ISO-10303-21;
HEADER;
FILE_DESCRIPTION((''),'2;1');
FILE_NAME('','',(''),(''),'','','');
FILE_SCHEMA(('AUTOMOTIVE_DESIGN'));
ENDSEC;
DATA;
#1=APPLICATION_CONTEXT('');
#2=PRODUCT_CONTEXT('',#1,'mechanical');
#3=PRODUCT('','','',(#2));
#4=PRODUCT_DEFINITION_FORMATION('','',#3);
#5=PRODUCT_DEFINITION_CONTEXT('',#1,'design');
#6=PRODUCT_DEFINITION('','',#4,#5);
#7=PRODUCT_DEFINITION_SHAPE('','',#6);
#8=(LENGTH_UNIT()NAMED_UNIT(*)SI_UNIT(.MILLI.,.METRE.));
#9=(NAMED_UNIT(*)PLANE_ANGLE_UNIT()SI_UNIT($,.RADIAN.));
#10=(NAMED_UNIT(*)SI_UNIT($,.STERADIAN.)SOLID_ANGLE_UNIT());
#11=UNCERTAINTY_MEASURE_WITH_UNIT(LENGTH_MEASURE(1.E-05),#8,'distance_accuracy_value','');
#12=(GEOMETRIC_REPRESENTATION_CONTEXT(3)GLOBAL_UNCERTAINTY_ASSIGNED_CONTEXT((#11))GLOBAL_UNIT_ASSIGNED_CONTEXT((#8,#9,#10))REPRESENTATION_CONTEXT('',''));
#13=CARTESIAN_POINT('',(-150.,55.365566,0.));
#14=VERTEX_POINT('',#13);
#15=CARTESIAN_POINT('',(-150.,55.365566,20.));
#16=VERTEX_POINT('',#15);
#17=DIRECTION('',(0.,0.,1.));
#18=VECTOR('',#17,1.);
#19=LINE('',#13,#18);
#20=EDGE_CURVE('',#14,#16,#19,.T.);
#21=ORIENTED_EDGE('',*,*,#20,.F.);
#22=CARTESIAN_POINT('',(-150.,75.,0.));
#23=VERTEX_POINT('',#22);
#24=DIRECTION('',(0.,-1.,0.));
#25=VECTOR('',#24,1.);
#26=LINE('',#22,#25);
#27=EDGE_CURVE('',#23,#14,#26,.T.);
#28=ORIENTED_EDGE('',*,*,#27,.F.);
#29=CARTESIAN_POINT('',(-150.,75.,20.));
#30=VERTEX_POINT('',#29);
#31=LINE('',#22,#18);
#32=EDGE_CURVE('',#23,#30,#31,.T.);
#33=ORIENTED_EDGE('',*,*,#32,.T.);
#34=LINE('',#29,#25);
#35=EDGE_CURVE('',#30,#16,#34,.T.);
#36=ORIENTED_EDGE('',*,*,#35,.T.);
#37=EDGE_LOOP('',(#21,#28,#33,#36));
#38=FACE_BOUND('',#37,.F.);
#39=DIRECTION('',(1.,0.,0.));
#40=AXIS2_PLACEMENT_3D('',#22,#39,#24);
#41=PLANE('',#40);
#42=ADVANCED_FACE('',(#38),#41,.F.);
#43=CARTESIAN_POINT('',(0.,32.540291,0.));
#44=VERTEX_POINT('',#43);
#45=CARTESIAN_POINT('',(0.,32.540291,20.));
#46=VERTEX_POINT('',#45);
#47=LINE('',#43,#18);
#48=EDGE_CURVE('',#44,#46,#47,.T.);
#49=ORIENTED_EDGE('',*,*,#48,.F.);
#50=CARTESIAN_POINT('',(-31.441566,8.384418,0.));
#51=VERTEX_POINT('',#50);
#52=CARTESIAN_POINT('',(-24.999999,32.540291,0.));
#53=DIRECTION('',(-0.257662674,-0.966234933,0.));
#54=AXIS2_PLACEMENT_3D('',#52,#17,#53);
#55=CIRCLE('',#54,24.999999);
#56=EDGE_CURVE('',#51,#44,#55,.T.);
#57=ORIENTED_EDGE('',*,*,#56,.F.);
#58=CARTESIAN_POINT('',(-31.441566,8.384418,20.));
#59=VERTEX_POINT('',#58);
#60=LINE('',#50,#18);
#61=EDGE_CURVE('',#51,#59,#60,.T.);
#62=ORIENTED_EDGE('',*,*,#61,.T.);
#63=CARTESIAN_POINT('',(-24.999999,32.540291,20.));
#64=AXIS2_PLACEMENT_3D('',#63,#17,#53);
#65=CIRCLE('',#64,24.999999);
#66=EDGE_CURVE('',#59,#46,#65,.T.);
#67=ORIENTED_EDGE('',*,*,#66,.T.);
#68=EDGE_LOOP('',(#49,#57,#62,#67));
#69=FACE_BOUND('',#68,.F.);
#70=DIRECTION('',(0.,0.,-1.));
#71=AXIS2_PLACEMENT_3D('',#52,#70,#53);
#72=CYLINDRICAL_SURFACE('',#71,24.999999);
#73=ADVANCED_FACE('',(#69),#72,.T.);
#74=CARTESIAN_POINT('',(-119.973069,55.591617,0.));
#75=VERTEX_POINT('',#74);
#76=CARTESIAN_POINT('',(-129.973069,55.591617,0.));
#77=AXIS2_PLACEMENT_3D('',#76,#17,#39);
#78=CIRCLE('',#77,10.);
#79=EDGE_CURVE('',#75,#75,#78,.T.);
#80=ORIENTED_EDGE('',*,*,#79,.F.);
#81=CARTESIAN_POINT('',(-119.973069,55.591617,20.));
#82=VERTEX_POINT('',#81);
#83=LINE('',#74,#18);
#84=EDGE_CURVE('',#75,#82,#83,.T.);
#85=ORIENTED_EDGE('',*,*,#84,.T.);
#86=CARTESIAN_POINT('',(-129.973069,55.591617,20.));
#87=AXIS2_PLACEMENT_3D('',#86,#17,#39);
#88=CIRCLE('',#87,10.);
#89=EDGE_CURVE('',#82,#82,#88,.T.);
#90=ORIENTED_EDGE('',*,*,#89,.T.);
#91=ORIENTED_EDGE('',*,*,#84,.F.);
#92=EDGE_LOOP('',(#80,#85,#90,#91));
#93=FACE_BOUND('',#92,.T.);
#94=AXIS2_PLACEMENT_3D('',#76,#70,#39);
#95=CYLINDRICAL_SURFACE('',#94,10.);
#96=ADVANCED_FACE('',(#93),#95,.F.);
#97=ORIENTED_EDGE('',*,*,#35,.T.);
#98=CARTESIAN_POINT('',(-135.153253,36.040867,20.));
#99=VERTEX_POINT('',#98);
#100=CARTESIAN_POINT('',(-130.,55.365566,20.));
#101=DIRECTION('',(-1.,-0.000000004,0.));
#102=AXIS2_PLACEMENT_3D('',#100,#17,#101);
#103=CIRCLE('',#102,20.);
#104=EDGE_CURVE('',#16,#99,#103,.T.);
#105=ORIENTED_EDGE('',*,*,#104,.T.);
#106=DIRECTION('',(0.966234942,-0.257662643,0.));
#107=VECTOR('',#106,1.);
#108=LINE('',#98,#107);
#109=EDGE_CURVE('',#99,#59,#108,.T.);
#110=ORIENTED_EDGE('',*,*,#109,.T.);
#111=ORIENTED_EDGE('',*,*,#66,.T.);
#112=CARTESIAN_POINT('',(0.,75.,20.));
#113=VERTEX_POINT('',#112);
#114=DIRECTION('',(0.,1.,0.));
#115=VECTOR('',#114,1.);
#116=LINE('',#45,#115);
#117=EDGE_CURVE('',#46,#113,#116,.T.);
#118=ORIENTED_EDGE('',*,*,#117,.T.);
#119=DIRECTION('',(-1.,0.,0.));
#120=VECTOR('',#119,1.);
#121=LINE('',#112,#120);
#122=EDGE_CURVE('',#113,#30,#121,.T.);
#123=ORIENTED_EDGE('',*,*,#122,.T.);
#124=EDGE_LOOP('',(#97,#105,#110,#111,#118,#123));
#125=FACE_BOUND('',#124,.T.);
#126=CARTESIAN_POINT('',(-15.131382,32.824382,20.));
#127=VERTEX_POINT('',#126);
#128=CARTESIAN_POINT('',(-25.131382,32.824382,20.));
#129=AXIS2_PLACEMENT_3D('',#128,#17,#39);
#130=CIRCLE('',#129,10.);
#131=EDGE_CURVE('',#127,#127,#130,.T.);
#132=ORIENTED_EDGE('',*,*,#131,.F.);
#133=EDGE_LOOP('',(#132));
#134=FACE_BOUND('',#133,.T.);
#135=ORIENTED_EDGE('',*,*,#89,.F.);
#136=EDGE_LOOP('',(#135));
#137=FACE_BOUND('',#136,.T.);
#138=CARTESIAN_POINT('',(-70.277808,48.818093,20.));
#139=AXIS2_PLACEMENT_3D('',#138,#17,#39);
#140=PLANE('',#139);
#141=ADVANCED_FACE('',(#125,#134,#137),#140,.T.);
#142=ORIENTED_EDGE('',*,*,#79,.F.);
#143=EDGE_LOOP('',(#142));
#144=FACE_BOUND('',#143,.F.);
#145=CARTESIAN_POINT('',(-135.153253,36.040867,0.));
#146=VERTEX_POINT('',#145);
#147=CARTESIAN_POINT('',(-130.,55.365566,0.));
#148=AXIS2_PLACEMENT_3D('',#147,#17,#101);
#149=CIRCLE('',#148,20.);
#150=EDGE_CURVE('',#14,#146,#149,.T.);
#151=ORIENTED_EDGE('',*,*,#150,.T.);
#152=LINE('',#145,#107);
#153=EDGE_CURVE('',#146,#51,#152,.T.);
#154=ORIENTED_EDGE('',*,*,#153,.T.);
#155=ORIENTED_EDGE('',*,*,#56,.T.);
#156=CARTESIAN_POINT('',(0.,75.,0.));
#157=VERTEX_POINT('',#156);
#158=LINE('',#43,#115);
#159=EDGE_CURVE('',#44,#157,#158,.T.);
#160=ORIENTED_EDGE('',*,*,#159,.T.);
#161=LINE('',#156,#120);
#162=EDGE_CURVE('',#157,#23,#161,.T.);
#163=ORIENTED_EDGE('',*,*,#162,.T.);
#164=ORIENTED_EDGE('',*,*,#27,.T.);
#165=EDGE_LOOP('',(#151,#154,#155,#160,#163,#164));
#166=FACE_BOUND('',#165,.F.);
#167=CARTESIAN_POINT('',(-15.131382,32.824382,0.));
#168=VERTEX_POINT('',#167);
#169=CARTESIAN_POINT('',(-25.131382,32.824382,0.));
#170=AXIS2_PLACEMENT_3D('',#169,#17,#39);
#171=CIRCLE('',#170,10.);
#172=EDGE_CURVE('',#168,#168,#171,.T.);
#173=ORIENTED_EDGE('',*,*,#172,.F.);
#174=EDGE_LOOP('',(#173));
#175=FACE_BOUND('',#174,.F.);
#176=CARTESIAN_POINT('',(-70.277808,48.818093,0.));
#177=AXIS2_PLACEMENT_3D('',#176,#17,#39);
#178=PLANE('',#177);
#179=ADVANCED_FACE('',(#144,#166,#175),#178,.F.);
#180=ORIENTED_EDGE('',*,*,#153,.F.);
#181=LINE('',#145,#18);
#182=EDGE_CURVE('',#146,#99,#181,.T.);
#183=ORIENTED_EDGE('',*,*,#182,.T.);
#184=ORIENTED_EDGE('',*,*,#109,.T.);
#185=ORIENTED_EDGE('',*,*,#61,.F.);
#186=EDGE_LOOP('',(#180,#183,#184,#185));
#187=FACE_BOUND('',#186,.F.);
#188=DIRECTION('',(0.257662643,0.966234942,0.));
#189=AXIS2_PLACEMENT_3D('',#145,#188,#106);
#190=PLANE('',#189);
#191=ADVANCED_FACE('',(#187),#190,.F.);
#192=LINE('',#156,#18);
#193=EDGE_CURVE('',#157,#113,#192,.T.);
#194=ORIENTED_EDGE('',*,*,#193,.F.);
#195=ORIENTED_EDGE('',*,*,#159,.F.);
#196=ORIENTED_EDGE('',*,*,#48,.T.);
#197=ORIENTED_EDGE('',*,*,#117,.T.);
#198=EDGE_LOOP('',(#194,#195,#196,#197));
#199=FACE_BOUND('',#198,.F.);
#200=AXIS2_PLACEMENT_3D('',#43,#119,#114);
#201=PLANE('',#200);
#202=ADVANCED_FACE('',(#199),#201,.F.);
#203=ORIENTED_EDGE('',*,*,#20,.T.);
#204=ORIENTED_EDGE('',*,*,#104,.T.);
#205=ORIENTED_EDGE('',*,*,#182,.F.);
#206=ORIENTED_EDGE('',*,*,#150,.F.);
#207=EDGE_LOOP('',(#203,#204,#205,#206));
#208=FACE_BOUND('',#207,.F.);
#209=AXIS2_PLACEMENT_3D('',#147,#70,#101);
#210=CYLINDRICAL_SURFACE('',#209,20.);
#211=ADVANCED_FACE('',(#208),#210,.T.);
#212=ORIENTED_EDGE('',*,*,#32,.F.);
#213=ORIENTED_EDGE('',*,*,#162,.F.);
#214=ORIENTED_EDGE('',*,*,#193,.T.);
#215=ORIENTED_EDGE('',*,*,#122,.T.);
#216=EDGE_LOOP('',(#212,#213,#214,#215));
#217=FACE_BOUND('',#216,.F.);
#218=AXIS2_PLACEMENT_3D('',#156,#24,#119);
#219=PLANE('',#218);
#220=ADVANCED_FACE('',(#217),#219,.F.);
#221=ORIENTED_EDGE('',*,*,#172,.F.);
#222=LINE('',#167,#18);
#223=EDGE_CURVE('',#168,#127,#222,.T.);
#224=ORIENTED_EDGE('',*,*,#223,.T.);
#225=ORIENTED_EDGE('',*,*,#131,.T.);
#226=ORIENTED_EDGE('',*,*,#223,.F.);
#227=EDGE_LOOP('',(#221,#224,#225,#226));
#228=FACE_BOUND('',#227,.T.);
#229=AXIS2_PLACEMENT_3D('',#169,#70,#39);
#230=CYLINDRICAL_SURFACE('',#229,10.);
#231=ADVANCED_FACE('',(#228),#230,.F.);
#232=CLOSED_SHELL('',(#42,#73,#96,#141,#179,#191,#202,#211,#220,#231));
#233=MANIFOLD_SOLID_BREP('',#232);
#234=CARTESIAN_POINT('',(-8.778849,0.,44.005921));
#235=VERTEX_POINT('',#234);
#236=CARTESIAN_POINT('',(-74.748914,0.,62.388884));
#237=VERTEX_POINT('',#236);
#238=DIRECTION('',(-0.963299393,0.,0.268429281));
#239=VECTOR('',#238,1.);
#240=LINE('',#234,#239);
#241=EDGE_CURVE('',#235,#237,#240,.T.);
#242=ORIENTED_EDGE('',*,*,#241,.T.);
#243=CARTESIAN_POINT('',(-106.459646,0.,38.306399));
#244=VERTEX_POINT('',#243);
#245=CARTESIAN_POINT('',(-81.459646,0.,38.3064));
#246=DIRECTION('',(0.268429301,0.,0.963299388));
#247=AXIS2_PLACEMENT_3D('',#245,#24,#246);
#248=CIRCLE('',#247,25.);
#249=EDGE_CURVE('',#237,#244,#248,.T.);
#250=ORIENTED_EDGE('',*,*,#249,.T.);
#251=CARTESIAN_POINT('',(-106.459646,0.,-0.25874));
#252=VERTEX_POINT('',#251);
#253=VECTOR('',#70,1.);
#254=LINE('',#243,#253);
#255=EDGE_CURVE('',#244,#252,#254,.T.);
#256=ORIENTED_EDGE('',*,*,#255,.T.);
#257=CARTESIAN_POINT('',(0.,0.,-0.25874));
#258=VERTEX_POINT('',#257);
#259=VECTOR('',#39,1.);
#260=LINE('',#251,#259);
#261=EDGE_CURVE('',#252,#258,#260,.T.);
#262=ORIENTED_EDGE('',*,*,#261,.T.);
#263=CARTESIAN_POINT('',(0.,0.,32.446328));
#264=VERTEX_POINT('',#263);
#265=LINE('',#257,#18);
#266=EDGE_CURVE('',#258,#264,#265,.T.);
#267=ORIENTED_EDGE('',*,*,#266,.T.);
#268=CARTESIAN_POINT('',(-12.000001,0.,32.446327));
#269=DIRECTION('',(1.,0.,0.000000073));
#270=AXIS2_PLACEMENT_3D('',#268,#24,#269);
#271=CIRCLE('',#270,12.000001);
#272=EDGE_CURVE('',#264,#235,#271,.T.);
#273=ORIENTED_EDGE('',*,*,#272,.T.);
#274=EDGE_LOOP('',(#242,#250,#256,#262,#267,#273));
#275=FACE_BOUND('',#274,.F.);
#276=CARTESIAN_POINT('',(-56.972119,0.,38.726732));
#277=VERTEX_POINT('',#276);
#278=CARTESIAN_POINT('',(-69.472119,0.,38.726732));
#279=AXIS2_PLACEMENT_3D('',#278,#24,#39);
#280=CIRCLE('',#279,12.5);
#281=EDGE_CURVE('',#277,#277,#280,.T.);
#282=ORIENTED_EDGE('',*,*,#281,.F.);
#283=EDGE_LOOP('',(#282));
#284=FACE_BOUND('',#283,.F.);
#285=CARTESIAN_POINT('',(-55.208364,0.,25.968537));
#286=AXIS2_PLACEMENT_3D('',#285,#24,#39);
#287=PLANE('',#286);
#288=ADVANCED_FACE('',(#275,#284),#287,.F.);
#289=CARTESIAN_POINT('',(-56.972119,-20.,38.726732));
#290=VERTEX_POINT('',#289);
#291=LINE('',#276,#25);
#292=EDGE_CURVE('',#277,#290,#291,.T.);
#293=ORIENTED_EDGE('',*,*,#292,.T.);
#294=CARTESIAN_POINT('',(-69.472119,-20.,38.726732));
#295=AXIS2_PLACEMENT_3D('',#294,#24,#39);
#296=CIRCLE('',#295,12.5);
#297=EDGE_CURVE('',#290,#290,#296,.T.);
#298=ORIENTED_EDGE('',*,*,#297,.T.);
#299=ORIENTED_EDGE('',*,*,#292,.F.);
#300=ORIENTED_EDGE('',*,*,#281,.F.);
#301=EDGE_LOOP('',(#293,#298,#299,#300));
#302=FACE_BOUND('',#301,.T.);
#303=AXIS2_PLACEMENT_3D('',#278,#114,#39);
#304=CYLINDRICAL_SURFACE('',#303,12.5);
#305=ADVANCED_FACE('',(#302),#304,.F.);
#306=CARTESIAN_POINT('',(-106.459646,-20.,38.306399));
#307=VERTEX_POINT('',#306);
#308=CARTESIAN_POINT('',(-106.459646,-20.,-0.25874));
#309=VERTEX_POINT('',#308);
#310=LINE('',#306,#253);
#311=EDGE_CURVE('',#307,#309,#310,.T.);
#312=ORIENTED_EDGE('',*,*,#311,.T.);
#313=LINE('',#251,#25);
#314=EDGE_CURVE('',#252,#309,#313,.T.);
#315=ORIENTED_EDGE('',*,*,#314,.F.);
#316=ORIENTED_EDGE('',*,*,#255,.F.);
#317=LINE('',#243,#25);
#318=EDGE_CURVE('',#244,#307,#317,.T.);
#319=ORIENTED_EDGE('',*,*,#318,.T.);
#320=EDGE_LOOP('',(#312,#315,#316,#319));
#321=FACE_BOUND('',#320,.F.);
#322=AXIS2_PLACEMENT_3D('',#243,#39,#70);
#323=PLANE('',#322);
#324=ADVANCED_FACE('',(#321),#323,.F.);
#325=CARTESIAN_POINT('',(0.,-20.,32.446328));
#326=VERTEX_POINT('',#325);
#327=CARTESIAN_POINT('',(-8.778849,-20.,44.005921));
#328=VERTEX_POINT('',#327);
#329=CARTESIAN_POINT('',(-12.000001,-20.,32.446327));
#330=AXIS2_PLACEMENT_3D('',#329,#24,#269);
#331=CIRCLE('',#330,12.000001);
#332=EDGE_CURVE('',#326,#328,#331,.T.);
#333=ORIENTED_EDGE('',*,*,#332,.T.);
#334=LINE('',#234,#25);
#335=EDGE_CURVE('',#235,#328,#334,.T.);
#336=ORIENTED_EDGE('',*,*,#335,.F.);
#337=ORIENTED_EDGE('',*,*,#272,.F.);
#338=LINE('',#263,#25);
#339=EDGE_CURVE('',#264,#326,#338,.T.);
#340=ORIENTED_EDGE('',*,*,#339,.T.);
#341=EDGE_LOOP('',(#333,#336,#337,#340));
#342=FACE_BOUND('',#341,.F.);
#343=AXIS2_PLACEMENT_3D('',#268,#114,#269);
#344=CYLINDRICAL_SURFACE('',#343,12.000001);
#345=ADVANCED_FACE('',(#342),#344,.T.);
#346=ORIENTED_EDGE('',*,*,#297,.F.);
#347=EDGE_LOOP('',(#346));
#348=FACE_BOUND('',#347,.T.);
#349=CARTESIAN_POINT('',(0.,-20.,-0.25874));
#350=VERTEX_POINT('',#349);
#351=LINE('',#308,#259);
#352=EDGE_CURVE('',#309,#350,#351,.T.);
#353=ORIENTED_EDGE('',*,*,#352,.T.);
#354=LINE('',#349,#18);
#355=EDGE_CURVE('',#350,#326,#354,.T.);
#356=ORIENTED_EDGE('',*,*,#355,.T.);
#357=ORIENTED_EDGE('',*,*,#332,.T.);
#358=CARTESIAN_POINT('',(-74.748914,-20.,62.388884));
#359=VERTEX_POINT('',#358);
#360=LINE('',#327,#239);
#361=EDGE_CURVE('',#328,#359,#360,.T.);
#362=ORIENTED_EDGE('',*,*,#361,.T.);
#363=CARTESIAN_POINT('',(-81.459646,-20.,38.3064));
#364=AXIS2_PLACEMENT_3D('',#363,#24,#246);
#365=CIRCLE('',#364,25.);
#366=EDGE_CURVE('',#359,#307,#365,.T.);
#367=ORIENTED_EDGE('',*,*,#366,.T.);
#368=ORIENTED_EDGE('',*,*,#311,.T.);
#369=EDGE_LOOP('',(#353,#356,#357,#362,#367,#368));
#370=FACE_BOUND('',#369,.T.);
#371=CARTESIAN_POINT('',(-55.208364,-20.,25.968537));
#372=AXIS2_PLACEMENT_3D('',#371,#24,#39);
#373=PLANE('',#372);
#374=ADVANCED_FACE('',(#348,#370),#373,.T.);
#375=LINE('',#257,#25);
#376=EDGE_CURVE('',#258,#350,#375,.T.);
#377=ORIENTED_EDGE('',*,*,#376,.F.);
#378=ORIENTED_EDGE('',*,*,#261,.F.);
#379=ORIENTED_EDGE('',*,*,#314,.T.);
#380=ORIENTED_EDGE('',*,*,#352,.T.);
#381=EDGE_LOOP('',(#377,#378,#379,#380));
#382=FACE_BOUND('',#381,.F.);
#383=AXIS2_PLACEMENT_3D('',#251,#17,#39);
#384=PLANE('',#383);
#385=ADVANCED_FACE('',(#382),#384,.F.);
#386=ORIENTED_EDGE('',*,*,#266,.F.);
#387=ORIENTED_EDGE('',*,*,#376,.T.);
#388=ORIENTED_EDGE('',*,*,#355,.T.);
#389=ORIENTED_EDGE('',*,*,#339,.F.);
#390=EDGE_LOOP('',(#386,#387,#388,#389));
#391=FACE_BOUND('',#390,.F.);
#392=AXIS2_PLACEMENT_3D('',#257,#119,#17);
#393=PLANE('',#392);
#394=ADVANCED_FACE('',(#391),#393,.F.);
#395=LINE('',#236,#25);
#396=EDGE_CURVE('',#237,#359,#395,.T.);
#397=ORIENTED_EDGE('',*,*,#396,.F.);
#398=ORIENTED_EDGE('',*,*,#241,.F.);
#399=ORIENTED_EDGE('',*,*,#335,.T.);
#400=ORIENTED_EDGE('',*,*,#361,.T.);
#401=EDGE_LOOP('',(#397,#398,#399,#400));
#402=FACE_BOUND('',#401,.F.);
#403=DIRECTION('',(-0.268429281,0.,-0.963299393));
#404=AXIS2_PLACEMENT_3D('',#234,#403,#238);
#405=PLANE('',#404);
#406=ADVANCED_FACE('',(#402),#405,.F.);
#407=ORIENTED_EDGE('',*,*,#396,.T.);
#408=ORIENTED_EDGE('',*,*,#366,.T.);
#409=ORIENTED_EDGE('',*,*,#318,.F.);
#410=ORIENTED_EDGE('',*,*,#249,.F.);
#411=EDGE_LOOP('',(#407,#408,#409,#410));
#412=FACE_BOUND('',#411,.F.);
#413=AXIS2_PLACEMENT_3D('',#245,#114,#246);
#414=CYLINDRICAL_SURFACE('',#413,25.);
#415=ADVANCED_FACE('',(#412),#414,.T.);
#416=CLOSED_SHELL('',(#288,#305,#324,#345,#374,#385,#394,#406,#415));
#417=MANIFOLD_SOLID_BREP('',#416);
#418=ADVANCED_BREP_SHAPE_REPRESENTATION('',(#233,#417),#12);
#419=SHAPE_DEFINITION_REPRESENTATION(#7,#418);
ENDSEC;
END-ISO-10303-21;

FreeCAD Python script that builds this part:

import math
import FreeCAD as App
import Part
import Sketcher
Q = App.Units.Quantity

doc = App.newDocument("Part")
body = doc.addObject("PartDesign::Body", "Body")

sketch1 = body.newObject("Sketcher::SketchObject", "Sketch")
sketch1.AttachmentSupport = (doc.getObject("XY_Plane"), [""])
sketch1.MapMode = "FlatFace"
sketch1.addGeometry(Part.LineSegment(App.Vector(0, 75, 0), App.Vector(-150, 75, 0)), False)
sketch1.addGeometry(Part.LineSegment(App.Vector(-150, 75, 0), App.Vector(-150, 55, 0)), False)
sketch1.addGeometry(Part.ArcOfCircle(Part.Circle(App.Vector(-130, 55, 0), App.Vector(0, 0, 1), 20), math.radians(-180), math.radians(-105)), False)
sketch1.addGeometry(Part.LineSegment(App.Vector(-135, 36, 0), App.Vector(-31, 8, 0)), False)
sketch1.addGeometry(Part.ArcOfCircle(Part.Circle(App.Vector(-25, 33, 0), App.Vector(0, 0, 1), 25), math.radians(-105), math.radians(0)), False)
sketch1.addGeometry(Part.LineSegment(App.Vector(0, 33, 0), App.Vector(0, 75, 0)), False)
sketch1.addGeometry(Part.Circle(App.Vector(-25, 33, 0), App.Vector(0, 0, 1), 10), False)
sketch1.addGeometry(Part.Circle(App.Vector(-130, 56, 0), App.Vector(0, 0, 1), 10), False)
sketch1.addConstraint(Sketcher.Constraint("Coincident", 0, 2, 1, 1))
sketch1.addConstraint(Sketcher.Constraint("Tangent", 1, 2, 2, 1))
sketch1.addConstraint(Sketcher.Constraint("Tangent", 2, 2, 3, 1))
sketch1.addConstraint(Sketcher.Constraint("Tangent", 3, 2, 4, 1))
sketch1.addConstraint(Sketcher.Constraint("Tangent", 4, 2, 5, 1))
sketch1.addConstraint(Sketcher.Constraint("Coincident", 5, 2, 0, 1))
sketch1.addConstraint(Sketcher.Constraint("Horizontal", 0))
sketch1.addConstraint(Sketcher.Constraint("Vertical", 1))
sketch1.addConstraint(Sketcher.Constraint("Vertical", 5))
sketch1.addConstraint(Sketcher.Constraint("Equal", 6, 7))
sketch1.addConstraint(Sketcher.Constraint("PointOnObject", 4, 2, -2))
sketch1.addConstraint(Sketcher.Constraint("Diameter", 6, Q("20 mm")))
sketch1.addConstraint(Sketcher.Constraint("Radius", 2, Q("20 mm")))
sketch1.addConstraint(Sketcher.Constraint("Radius", 4, Q("24.999999 mm")))
sketch1.addConstraint(Sketcher.Constraint("DistanceX", 0, 2, 0, 1, Q("150 mm")))
sketch1.addConstraint(Sketcher.Constraint("DistanceY", -1, 1, 0, 2, Q("75 mm")))
sketch1.addConstraint(Sketcher.Constraint("DistanceY", 5, 1, 5, 2, Q("42.459709 mm")))
sketch1.addConstraint(Sketcher.Constraint("DistanceY", 2, 2, 2, 3, Q("19.324699 mm")))
sketch1.addConstraint(Sketcher.Constraint("DistanceY", 3, 2, 7, 3, Q("47.207199 mm")))
sketch1.addConstraint(Sketcher.Constraint("DistanceX", 6, 3, -1, 1, Q("25.131382 mm")))
sketch1.addConstraint(Sketcher.Constraint("DistanceX", 7, 3, -1, 1, Q("129.973069 mm")))
sketch1.addConstraint(Sketcher.Constraint("DistanceY", 4, 3, 6, 3, Q("0.284091 mm")))
pad1 = body.newObject("PartDesign::Pad", "Pad")
pad1.Profile = sketch1
pad1.Length = 20
body2 = doc.addObject("PartDesign::Body", "Body001")

sketch2 = body2.newObject("Sketcher::SketchObject", "Sketch001")
sketch2.AttachmentSupport = (doc.getObject("XZ_Plane001"), [""])
sketch2.MapMode = "FlatFace"
sketch2.addGeometry(Part.LineSegment(App.Vector(-106, 0, 0), App.Vector(0, 0, 0)), False)
sketch2.addGeometry(Part.LineSegment(App.Vector(0, 0, 0), App.Vector(0, 32, 0)), False)
sketch2.addGeometry(Part.ArcOfCircle(Part.Circle(App.Vector(-12, 32, 0), App.Vector(0, 0, 1), 12), math.radians(0), math.radians(74)), False)
sketch2.addGeometry(Part.LineSegment(App.Vector(-9, 44, 0), App.Vector(-75, 62, 0)), False)
sketch2.addGeometry(Part.ArcOfCircle(Part.Circle(App.Vector(-81, 38, 0), App.Vector(0, 0, 1), 25), math.radians(74), math.radians(180)), False)
sketch2.addGeometry(Part.LineSegment(App.Vector(-106, 38, 0), App.Vector(-106, 0, 0)), False)
sketch2.addGeometry(Part.Circle(App.Vector(-69, 39, 0), App.Vector(0, 0, 1), 12), False)
sketch2.addConstraint(Sketcher.Constraint("Coincident", 0, 2, 1, 1))
sketch2.addConstraint(Sketcher.Constraint("Tangent", 1, 2, 2, 1))
sketch2.addConstraint(Sketcher.Constraint("Tangent", 2, 2, 3, 1))
sketch2.addConstraint(Sketcher.Constraint("Tangent", 3, 2, 4, 1))
sketch2.addConstraint(Sketcher.Constraint("Tangent", 4, 2, 5, 1))
sketch2.addConstraint(Sketcher.Constraint("Coincident", 5, 2, 0, 1))
sketch2.addConstraint(Sketcher.Constraint("Horizontal", 0))
sketch2.addConstraint(Sketcher.Constraint("Vertical", 1))
sketch2.addConstraint(Sketcher.Constraint("Vertical", 5))
sketch2.addConstraint(Sketcher.Constraint("PointOnObject", 0, 2, -2))
sketch2.addConstraint(Sketcher.Constraint("Diameter", 6, Q("25 mm")))
sketch2.addConstraint(Sketcher.Constraint("Radius", 2, Q("12.000001 mm")))
sketch2.addConstraint(Sketcher.Constraint("Radius", 4, Q("25 mm")))
sketch2.addConstraint(Sketcher.Constraint("DistanceY", 1, 1, 1, 2, Q("32.705068 mm")))
sketch2.addConstraint(Sketcher.Constraint("DistanceY", 5, 2, 5, 1, Q("38.565139 mm")))
sketch2.addConstraint(Sketcher.Constraint("DistanceY", -1, 1, 4, 3, Q("38.3064 mm")))
sketch2.addConstraint(Sketcher.Constraint("Distance", 3, Q("68.483449 mm")))
sketch2.addConstraint(Sketcher.Constraint("DistanceX", 6, 3, -1, 1, Q("69.472119 mm")))
sketch2.addConstraint(Sketcher.Constraint("DistanceY", -1, 1, 6, 3, Q("38.726732 mm")))
pad2 = body2.newObject("PartDesign::Pad", "Pad001")
pad2.Profile = sketch2
pad2.Length = 20

doc.recompute()
